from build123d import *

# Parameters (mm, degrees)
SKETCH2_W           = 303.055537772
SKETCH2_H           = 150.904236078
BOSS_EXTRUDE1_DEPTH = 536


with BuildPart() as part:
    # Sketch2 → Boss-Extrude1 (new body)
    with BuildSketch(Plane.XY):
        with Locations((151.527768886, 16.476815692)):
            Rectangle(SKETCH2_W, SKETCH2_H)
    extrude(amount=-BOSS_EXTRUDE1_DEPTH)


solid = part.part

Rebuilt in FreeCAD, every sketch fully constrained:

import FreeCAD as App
import Part
import Sketcher

V = App.Vector

doc = App.newDocument("Part")
body = doc.addObject("PartDesign::Body", "Body")

# Sketch on XY plane
sketch1 = body.newObject("Sketcher::SketchObject", "Sketch")
sketch1.AttachmentSupport = (doc.getObject("XY_Plane"), [""])
sketch1.MapMode = "FlatFace"
sketch1.addGeometry(Part.LineSegment(V(0, 92, 0), V(0, -59, 0)), False)
sketch1.addGeometry(Part.LineSegment(V(0, -59, 0), V(303, -59, 0)), False)
sketch1.addGeometry(Part.LineSegment(V(303, -59, 0), V(303, 92, 0)), False)
sketch1.addGeometry(Part.LineSegment(V(303, 92, 0), V(0, 92, 0)), False)
sketch1.addConstraint(Sketcher.Constraint("Coincident", 0, 2, 1, 1))
sketch1.addConstraint(Sketcher.Constraint("Coincident", 1, 2, 2, 1))
sketch1.addConstraint(Sketcher.Constraint("Coincident", 2, 2, 3, 1))
sketch1.addConstraint(Sketcher.Constraint("Coincident", 3, 2, 0, 1))
sketch1.addConstraint(Sketcher.Constraint("Vertical", 0))
sketch1.addConstraint(Sketcher.Constraint("Horizontal", 1))
sketch1.addConstraint(Sketcher.Constraint("Vertical", 2))
sketch1.addConstraint(Sketcher.Constraint("Horizontal", 3))
sketch1.addConstraint(Sketcher.Constraint("PointOnObject", 0, 2, -2))
sketch1.addConstraint(Sketcher.Constraint("DistanceX", 1, 1, 1, 2, 303.055538))
sketch1.addConstraint(Sketcher.Constraint("DistanceY", 0, 2, 0, 1, 150.904236))
sketch1.addConstraint(Sketcher.Constraint("DistanceY", 0, 2, -1, 1, 58.975302))
pad1 = body.newObject("PartDesign::Pad", "Pad")
pad1.Profile = sketch1
pad1.Length = 536
pad1.Reversed = True

doc.recompute()
